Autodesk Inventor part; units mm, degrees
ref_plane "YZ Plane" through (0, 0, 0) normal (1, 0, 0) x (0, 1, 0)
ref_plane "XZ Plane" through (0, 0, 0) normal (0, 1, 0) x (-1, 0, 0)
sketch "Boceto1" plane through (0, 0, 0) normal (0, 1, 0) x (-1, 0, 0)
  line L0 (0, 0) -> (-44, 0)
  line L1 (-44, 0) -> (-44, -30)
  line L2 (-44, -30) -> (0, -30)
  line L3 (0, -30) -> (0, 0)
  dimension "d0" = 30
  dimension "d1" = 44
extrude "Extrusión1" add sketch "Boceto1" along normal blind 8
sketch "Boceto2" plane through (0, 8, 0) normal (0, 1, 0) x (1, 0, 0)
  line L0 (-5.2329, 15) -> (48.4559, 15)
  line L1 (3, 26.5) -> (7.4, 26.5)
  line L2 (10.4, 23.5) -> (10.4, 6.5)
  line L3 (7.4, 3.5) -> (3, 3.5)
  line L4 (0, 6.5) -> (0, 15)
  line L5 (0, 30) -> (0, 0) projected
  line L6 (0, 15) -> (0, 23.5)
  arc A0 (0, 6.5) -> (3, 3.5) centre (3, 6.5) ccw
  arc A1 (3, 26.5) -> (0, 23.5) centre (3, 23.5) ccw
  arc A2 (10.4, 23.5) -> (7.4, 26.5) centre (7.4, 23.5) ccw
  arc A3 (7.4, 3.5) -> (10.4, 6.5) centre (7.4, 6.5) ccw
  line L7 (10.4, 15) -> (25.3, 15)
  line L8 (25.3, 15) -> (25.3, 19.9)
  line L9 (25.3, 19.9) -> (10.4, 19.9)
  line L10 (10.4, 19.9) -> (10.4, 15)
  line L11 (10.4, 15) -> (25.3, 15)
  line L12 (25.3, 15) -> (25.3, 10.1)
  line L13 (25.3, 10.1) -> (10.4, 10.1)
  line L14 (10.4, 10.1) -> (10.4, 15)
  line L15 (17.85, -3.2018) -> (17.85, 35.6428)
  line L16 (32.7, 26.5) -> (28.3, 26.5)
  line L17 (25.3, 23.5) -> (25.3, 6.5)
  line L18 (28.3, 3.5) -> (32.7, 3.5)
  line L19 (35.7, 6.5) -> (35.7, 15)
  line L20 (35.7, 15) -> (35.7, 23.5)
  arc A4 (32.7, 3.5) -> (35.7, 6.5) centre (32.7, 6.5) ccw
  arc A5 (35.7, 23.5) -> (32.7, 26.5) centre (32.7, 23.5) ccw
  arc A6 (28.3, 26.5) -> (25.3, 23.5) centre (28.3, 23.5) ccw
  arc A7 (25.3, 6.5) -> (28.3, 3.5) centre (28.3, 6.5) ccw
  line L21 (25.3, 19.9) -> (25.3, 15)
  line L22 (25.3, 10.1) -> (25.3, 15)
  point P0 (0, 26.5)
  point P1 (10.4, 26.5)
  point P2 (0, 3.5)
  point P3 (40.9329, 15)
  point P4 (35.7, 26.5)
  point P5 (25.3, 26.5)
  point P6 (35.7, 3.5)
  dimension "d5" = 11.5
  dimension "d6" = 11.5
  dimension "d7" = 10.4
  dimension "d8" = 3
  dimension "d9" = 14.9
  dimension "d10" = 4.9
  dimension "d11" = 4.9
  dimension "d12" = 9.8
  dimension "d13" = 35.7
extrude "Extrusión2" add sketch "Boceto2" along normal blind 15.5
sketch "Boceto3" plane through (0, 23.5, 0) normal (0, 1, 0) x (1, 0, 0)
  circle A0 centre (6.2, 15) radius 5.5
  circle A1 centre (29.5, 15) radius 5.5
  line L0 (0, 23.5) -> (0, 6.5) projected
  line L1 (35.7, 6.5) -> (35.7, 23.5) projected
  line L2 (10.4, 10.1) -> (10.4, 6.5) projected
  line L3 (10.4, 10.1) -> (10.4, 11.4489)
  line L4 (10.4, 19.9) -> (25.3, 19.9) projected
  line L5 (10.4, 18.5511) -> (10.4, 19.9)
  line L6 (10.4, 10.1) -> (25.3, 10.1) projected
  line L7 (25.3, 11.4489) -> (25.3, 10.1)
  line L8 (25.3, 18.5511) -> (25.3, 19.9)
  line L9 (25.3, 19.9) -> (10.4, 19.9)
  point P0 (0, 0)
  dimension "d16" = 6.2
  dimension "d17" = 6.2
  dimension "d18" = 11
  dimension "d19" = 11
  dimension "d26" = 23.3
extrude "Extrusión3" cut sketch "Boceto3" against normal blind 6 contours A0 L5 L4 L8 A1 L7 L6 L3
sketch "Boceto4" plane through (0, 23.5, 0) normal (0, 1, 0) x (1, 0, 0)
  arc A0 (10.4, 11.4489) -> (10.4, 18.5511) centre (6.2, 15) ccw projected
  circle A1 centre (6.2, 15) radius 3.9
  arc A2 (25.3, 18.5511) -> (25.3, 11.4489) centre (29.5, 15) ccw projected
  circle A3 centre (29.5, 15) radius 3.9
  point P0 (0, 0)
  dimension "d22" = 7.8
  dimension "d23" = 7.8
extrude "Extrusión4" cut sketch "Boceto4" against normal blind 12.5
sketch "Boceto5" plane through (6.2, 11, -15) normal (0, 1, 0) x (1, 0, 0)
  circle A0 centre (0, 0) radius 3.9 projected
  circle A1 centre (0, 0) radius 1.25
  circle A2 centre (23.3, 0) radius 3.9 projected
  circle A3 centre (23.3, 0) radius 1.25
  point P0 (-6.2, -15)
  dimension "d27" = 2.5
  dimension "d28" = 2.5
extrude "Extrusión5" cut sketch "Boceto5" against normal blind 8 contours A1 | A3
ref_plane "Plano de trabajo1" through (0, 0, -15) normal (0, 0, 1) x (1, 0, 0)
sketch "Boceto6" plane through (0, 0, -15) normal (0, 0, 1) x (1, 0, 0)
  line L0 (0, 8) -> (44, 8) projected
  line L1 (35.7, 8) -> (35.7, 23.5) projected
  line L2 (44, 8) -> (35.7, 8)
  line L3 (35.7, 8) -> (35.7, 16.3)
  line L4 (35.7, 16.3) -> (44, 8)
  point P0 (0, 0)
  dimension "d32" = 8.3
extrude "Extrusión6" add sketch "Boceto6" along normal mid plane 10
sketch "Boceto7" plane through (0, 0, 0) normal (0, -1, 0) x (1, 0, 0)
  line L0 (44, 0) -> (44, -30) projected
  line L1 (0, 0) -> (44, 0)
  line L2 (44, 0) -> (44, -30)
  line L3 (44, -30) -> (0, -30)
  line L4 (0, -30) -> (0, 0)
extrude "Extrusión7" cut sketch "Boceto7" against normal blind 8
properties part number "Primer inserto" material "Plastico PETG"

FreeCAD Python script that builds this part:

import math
import FreeCAD as App
import Part
import Sketcher
Q = App.Units.Quantity

doc = App.newDocument("Part")
body = doc.addObject("PartDesign::Body", "Body")

sketch1 = doc.addObject("Sketcher::SketchObject", "Sketch")
body.addObject(sketch1)
sketch1.AttachmentSupport = (doc.XZ_Plane, [""])
sketch1.MapMode = "FlatFace"
sketch1.addGeometry([
    Part.LineSegment(App.Vector(0, -30, 0), App.Vector(0, 0, 0)),
    Part.LineSegment(App.Vector(0, 0, 0), App.Vector(44, 0, 0)),
    Part.LineSegment(App.Vector(44, 0, 0), App.Vector(44, -30, 0)),
    Part.LineSegment(App.Vector(44, -30, 0), App.Vector(0, -30, 0)),
], False)
sketch1.addConstraint([
    Sketcher.Constraint("Coincident", 0, 2, 1, 1),
    Sketcher.Constraint("Coincident", 1, 2, 2, 1),
    Sketcher.Constraint("Coincident", 2, 2, 3, 1),
    Sketcher.Constraint("Coincident", 3, 2, 0, 1),
    Sketcher.Constraint("Vertical", 0),
    Sketcher.Constraint("Horizontal", 1),
    Sketcher.Constraint("Vertical", 2),
    Sketcher.Constraint("Horizontal", 3),
    Sketcher.Constraint("Coincident", 0, 2, -1, 1),
    Sketcher.Constraint("DistanceX", 1, 1, 1, 2, Q("44 mm")),
    Sketcher.Constraint("DistanceY", 0, 1, 0, 2, Q("30 mm")),
])
pad1 = doc.addObject("PartDesign::Pad", "Pad")
body.addObject(pad1)
pad1.Profile = sketch1
pad1.Length = 8
pad1.Reversed = True

sketch2 = doc.addObject("Sketcher::SketchObject", "Sketch001")
body.addObject(sketch2)
sketch2.AttachmentSupport = (doc.XZ_Plane, [""])
sketch2.MapMode = "FlatFace"
sketch2.AttachmentOffset = App.Placement(App.Vector(0, 0, -8), App.Rotation())
sketch2.addGeometry([
    Part.LineSegment(App.Vector(0, -23.5, 0), App.Vector(0, -6.5, 0)),
    Part.ArcOfCircle(Part.Circle(App.Vector(3, -6.5, 0), App.Vector(0, 0, 1), 3), math.radians(90), math.radians(180)),
    Part.LineSegment(App.Vector(3, -3.5, 0), App.Vector(7.4, -3.5, 0)),
    Part.ArcOfCircle(Part.Circle(App.Vector(7.4, -6.5, 0), App.Vector(0, 0, 1), 3), math.radians(0), math.radians(90)),
    Part.LineSegment(App.Vector(10.4, -6.5, 0), App.Vector(10.4, -10.1, 0)),
    Part.LineSegment(App.Vector(10.4, -10.1, 0), App.Vector(25.3, -10.1, 0)),
    Part.LineSegment(App.Vector(25.3, -10.1, 0), App.Vector(25.3, -6.5, 0)),
    Part.ArcOfCircle(Part.Circle(App.Vector(28.3, -6.5, 0), App.Vector(0, 0, 1), 3), math.radians(90), math.radians(180)),
    Part.LineSegment(App.Vector(28.3, -3.5, 0), App.Vector(32.7, -3.5, 0)),
    Part.ArcOfCircle(Part.Circle(App.Vector(32.7, -6.5, 0), App.Vector(0, 0, 1), 3), math.radians(0), math.radians(90)),
    Part.LineSegment(App.Vector(35.7, -6.5, 0), App.Vector(35.7, -23.5, 0)),
    Part.ArcOfCircle(Part.Circle(App.Vector(32.7, -23.5, 0), App.Vector(0, 0, 1), 3), math.radians(-90), math.radians(0)),
    Part.LineSegment(App.Vector(32.7, -26.5, 0), App.Vector(28.3, -26.5, 0)),
    Part.ArcOfCircle(Part.Circle(App.Vector(28.3, -23.5, 0), App.Vector(0, 0, 1), 3), math.radians(180), math.radians(270)),
    Part.LineSegment(App.Vector(25.3, -23.5, 0), App.Vector(25.3, -19.9, 0)),
    Part.LineSegment(App.Vector(25.3, -19.9, 0), App.Vector(10.4, -19.9, 0)),
    Part.LineSegment(App.Vector(10.4, -19.9, 0), App.Vector(10.4, -23.5, 0)),
    Part.ArcOfCircle(Part.Circle(App.Vector(7.4, -23.5, 0), App.Vector(0, 0, 1), 3), math.radians(-90), math.radians(0)),
    Part.LineSegment(App.Vector(7.4, -26.5, 0), App.Vector(3, -26.5, 0)),
    Part.ArcOfCircle(Part.Circle(App.Vector(3, -23.5, 0), App.Vector(0, 0, 1), 3), math.radians(180), math.radians(270)),
], False)
sketch2.addConstraint([
    Sketcher.Constraint("Tangent", 0, 2, 1, 2),
    Sketcher.Constraint("Tangent", 1, 1, 2, 1),
    Sketcher.Constraint("Tangent", 2, 2, 3, 2),
    Sketcher.Constraint("Tangent", 3, 1, 4, 1),
    Sketcher.Constraint("Coincident", 4, 2, 5, 1),
    Sketcher.Constraint("Coincident", 5, 2, 6, 1),
    Sketcher.Constraint("Tangent", 6, 2, 7, 2),
    Sketcher.Constraint("Tangent", 7, 1, 8, 1),
    Sketcher.Constraint("Tangent", 8, 2, 9, 2),
    Sketcher.Constraint("Tangent", 9, 1, 10, 1),
    Sketcher.Constraint("Tangent", 10, 2, 11, 2),
    Sketcher.Constraint("Tangent", 11, 1, 12, 1),
    Sketcher.Constraint("Tangent", 12, 2, 13, 2),
    Sketcher.Constraint("Tangent", 13, 1, 14, 1),
    Sketcher.Constraint("Coincident", 14, 2, 15, 1),
    Sketcher.Constraint("Coincident", 15, 2, 16, 1),
    Sketcher.Constraint("Tangent", 16, 2, 17, 2),
    Sketcher.Constraint("Tangent", 17, 1, 18, 1),
    Sketcher.Constraint("Tangent", 18, 2, 19, 2),
    Sketcher.Constraint("Tangent", 19, 1, 0, 1),
    Sketcher.Constraint("Vertical", 0),
    Sketcher.Constraint("Horizontal", 2),
    Sketcher.Constraint("Vertical", 4),
    Sketcher.Constraint("Horizontal", 5),
    Sketcher.Constraint("Vertical", 6),
    Sketcher.Constraint("Horizontal", 8),
    Sketcher.Constraint("Vertical", 10),
    Sketcher.Constraint("Horizontal", 12),
    Sketcher.Constraint("Vertical", 14),
    Sketcher.Constraint("Horizontal", 15),
    Sketcher.Constraint("Vertical", 16),
    Sketcher.Constraint("Horizontal", 18),
    Sketcher.Constraint("Equal", 1, 3),
    Sketcher.Constraint("Equal", 3, 7),
    Sketcher.Constraint("Equal", 7, 9),
    Sketcher.Constraint("Equal", 9, 11),
    Sketcher.Constraint("Equal", 11, 13),
    Sketcher.Constraint("Equal", 13, 17),
    Sketcher.Constraint("Equal", 17, 19),
    Sketcher.Constraint("PointOnObject", 0, 2, -2),
    Sketcher.Constraint("Horizontal", 3, 3, 7, 3),
    Sketcher.Constraint("Horizontal", 13, 3, 17, 3),
    Sketcher.Constraint("Vertical", 7, 3, 13, 3),
    Sketcher.Constraint("Vertical", 3, 3, 17, 3),
    Sketcher.Constraint("Equal", 2, 8),
    Sketcher.Constraint("Equal", 6, 14),
    Sketcher.Constraint("Radius", 1, Q("3 mm")),
    Sketcher.Constraint("DistanceX", 5, 1, 5, 2, Q("14.9 mm")),
    Sketcher.Constraint("DistanceX", -1, 1, 3, 1, Q("10.4 mm")),
    Sketcher.Constraint("DistanceY", 14, 2, 5, 2, Q("9.8 mm")),
    Sketcher.Constraint("DistanceY", 0, 1, 0, 2, Q("17 mm")),
    Sketcher.Constraint("DistanceY", 1, 3, -1, 1, Q("6.5 mm")),
])
pad2 = doc.addObject("PartDesign::Pad", "Pad001")
body.addObject(pad2)
pad2.Profile = sketch2
pad2.Length = 15.5
pad2.Reversed = True

sketch3 = doc.addObject("Sketcher::SketchObject", "Sketch002")
body.addObject(sketch3)
sketch3.AttachmentSupport = (doc.XZ_Plane, [""])
sketch3.MapMode = "FlatFace"
sketch3.AttachmentOffset = App.Placement(App.Vector(0, 0, -23.5), App.Rotation())
sketch3.addGeometry([
    Part.ArcOfCircle(Part.Circle(App.Vector(6.2, -15, 0), App.Vector(0, 0, 1), 5.5), math.radians(-40), math.radians(40)),
    Part.LineSegment(App.Vector(10.4, -11.4, 0), App.Vector(10.4, -10.1, 0)),
    Part.LineSegment(App.Vector(10.4, -10.1, 0), App.Vector(25.3, -10.1, 0)),
    Part.LineSegment(App.Vector(25.3, -10.1, 0), App.Vector(25.3, -11.4, 0)),
    Part.ArcOfCircle(Part.Circle(App.Vector(29.5, -15, 0), App.Vector(0, 0, 1), 5.5), math.radians(140), math.radians(220)),
    Part.LineSegment(App.Vector(25.3, -18.6, 0), App.Vector(25.3, -19.9, 0)),
    Part.LineSegment(App.Vector(25.3, -19.9, 0), App.Vector(10.4, -19.9, 0)),
    Part.LineSegment(App.Vector(10.4, -19.9, 0), App.Vector(10.4, -18.6, 0)),
], False)
sketch3.addConstraint([
    Sketcher.Constraint("Coincident", 0, 2, 1, 1),
    Sketcher.Constraint("Coincident", 1, 2, 2, 1),
    Sketcher.Constraint("Coincident", 2, 2, 3, 1),
    Sketcher.Constraint("Coincident", 3, 2, 4, 1),
    Sketcher.Constraint("Coincident", 4, 2, 5, 1),
    Sketcher.Constraint("Coincident", 5, 2, 6, 1),
    Sketcher.Constraint("Coincident", 6, 2, 7, 1),
    Sketcher.Constraint("Coincident", 7, 2, 0, 1),
    Sketcher.Constraint("Vertical", 1),
    Sketcher.Constraint("Horizontal", 2),
    Sketcher.Constraint("Vertical", 3),
    Sketcher.Constraint("Vertical", 5),
    Sketcher.Constraint("Horizontal", 6),
    Sketcher.Constraint("Vertical", 7),
    Sketcher.Constraint("Equal", 0, 4),
    Sketcher.Constraint("Horizontal", 0, 3, 4, 3),
    Sketcher.Constraint("Horizontal", 0, 2, 3, 2),
    Sketcher.Constraint("Horizontal", 4, 2, 7, 2),
    Sketcher.Constraint("Vertical", 3, 2, 4, 2),
    Sketcher.Constraint("Equal", 3, 5),
    Sketcher.Constraint("Radius", 0, Q("5.5 mm")),
    Sketcher.Constraint("DistanceX", -1, 1, 0, 3, Q("6.2 mm")),
    Sketcher.Constraint("DistanceX", 0, 3, 4, 3, Q("23.3 mm")),
    Sketcher.Constraint("DistanceX", 2, 1, 2, 2, Q("14.9 mm")),
    Sketcher.Constraint("DistanceY", 0, 3, -1, 1, Q("15 mm")),
    Sketcher.Constraint("DistanceY", 1, 2, -1, 1, Q("10.1 mm")),
])
pocket1 = doc.addObject("PartDesign::Pocket", "Pocket")
body.addObject(pocket1)
pocket1.Profile = sketch3
pocket1.Length = 6
pocket1.Reversed = True

sketch4 = doc.addObject("Sketcher::SketchObject", "Sketch003")
body.addObject(sketch4)
sketch4.AttachmentSupport = (doc.XZ_Plane, [""])
sketch4.MapMode = "FlatFace"
sketch4.AttachmentOffset = App.Placement(App.Vector(0, 0, -23.5), App.Rotation())
sketch4.addGeometry([
    Part.Circle(App.Vector(6.2, -15, 0), App.Vector(0, 0, 1), 3.9),
    Part.Circle(App.Vector(29.5, -15, 0), App.Vector(0, 0, 1), 3.9),
], False)
sketch4.addConstraint([
    Sketcher.Constraint("Equal", 0, 1),
    Sketcher.Constraint("Horizontal", 0, 3, 1, 3),
    Sketcher.Constraint("Diameter", 0, Q("7.8 mm")),
    Sketcher.Constraint("DistanceY", 0, 3, -1, 1, Q("15 mm")),
    Sketcher.Constraint("DistanceX", -1, 1, 0, 3, Q("6.2 mm")),
    Sketcher.Constraint("DistanceX", -1, 1, 1, 3, Q("29.5 mm")),
])
pocket2 = doc.addObject("PartDesign::Pocket", "Pocket001")
body.addObject(pocket2)
pocket2.Profile = sketch4
pocket2.Length = 12.5
pocket2.Reversed = True

sketch5 = doc.addObject("Sketcher::SketchObject", "Sketch004")
body.addObject(sketch5)
sketch5.AttachmentSupport = (doc.XZ_Plane, [""])
sketch5.MapMode = "FlatFace"
sketch5.AttachmentOffset = App.Placement(App.Vector(0, 0, -11), App.Rotation())
sketch5.addGeometry([
    Part.Circle(App.Vector(6.2, -15, 0), App.Vector(0, 0, 1), 1.2),
    Part.Circle(App.Vector(29.5, -15, 0), App.Vector(0, 0, 1), 1.2),
], False)
sketch5.addConstraint([
    Sketcher.Constraint("Equal", 0, 1),
    Sketcher.Constraint("Horizontal", 0, 3, 1, 3),
    Sketcher.Constraint("Diameter", 0, Q("2.5 mm")),
    Sketcher.Constraint("DistanceY", 0, 3, -1, 1, Q("15 mm")),
    Sketcher.Constraint("DistanceX", -1, 1, 0, 3, Q("6.2 mm")),
    Sketcher.Constraint("DistanceX", -1, 1, 1, 3, Q("29.5 mm")),
])
pocket3 = doc.addObject("PartDesign::Pocket", "Pocket002")
body.addObject(pocket3)
pocket3.Profile = sketch5
pocket3.Length = 8
pocket3.Reversed = True

sketch6 = doc.addObject("Sketcher::SketchObject", "Sketch005")
body.addObject(sketch6)
sketch6.AttachmentSupport = (doc.XY_Plane, [""])
sketch6.MapMode = "FlatFace"
sketch6.AttachmentOffset = App.Placement(App.Vector(0, 0, -15), App.Rotation())
sketch6.addGeometry([
    Part.LineSegment(App.Vector(36, 16, 0), App.Vector(36, 8, 0)),
    Part.LineSegment(App.Vector(36, 8, 0), App.Vector(44, 8, 0)),
    Part.LineSegment(App.Vector(44, 8, 0), App.Vector(36, 16, 0)),
], False)
sketch6.addConstraint([
    Sketcher.Constraint("Coincident", 0, 2, 1, 1),
    Sketcher.Constraint("Coincident", 1, 2, 2, 1),
    Sketcher.Constraint("Coincident", 2, 2, 0, 1),
    Sketcher.Constraint("Vertical", 0),
    Sketcher.Constraint("Horizontal", 1),
    Sketcher.Constraint("Equal", 1, 0),
    Sketcher.Constraint("DistanceX", 1, 1, 1, 2, Q("8.3 mm")),
    Sketcher.Constraint("DistanceY", -1, 1, 0, 2, Q("8 mm")),
    Sketcher.Constraint("DistanceX", -1, 1, 1, 2, Q("44 mm")),
])
pad3 = doc.addObject("PartDesign::Pad", "Pad002")
body.addObject(pad3)
pad3.Profile = sketch6
pad3.Length = 10
pad3.Midplane = True

sketch7 = doc.addObject("Sketcher::SketchObject", "Sketch006")
body.addObject(sketch7)
sketch7.AttachmentSupport = (doc.XZ_Plane, [""])
sketch7.MapMode = "FlatFace"
sketch7.addGeometry([
    Part.LineSegment(App.Vector(44, -30, 0), App.Vector(44, 0, 0)),
    Part.LineSegment(App.Vector(44, 0, 0), App.Vector(0, 0, 0)),
    Part.LineSegment(App.Vector(0, 0, 0), App.Vector(0, -30, 0)),
    Part.LineSegment(App.Vector(0, -30, 0), App.Vector(44, -30, 0)),
], False)
sketch7.addConstraint([
    Sketcher.Constraint("Coincident", 0, 2, 1, 1),
    Sketcher.Constraint("Coincident", 1, 2, 2, 1),
    Sketcher.Constraint("Coincident", 2, 2, 3, 1),
    Sketcher.Constraint("Coincident", 3, 2, 0, 1),
    Sketcher.Constraint("Vertical", 0),
    Sketcher.Constraint("Horizontal", 1),
    Sketcher.Constraint("Vertical", 2),
    Sketcher.Constraint("Horizontal", 3),
    Sketcher.Constraint("Coincident", 1, 2, -1, 1),
    Sketcher.Constraint("DistanceX", 1, 2, 1, 1, Q("44 mm")),
    Sketcher.Constraint("DistanceY", 0, 1, 0, 2, Q("30 mm")),
])
pocket4 = doc.addObject("PartDesign::Pocket", "Pocket003")
body.addObject(pocket4)
pocket4.Profile = sketch7
pocket4.Length = 8

doc.recompute()
